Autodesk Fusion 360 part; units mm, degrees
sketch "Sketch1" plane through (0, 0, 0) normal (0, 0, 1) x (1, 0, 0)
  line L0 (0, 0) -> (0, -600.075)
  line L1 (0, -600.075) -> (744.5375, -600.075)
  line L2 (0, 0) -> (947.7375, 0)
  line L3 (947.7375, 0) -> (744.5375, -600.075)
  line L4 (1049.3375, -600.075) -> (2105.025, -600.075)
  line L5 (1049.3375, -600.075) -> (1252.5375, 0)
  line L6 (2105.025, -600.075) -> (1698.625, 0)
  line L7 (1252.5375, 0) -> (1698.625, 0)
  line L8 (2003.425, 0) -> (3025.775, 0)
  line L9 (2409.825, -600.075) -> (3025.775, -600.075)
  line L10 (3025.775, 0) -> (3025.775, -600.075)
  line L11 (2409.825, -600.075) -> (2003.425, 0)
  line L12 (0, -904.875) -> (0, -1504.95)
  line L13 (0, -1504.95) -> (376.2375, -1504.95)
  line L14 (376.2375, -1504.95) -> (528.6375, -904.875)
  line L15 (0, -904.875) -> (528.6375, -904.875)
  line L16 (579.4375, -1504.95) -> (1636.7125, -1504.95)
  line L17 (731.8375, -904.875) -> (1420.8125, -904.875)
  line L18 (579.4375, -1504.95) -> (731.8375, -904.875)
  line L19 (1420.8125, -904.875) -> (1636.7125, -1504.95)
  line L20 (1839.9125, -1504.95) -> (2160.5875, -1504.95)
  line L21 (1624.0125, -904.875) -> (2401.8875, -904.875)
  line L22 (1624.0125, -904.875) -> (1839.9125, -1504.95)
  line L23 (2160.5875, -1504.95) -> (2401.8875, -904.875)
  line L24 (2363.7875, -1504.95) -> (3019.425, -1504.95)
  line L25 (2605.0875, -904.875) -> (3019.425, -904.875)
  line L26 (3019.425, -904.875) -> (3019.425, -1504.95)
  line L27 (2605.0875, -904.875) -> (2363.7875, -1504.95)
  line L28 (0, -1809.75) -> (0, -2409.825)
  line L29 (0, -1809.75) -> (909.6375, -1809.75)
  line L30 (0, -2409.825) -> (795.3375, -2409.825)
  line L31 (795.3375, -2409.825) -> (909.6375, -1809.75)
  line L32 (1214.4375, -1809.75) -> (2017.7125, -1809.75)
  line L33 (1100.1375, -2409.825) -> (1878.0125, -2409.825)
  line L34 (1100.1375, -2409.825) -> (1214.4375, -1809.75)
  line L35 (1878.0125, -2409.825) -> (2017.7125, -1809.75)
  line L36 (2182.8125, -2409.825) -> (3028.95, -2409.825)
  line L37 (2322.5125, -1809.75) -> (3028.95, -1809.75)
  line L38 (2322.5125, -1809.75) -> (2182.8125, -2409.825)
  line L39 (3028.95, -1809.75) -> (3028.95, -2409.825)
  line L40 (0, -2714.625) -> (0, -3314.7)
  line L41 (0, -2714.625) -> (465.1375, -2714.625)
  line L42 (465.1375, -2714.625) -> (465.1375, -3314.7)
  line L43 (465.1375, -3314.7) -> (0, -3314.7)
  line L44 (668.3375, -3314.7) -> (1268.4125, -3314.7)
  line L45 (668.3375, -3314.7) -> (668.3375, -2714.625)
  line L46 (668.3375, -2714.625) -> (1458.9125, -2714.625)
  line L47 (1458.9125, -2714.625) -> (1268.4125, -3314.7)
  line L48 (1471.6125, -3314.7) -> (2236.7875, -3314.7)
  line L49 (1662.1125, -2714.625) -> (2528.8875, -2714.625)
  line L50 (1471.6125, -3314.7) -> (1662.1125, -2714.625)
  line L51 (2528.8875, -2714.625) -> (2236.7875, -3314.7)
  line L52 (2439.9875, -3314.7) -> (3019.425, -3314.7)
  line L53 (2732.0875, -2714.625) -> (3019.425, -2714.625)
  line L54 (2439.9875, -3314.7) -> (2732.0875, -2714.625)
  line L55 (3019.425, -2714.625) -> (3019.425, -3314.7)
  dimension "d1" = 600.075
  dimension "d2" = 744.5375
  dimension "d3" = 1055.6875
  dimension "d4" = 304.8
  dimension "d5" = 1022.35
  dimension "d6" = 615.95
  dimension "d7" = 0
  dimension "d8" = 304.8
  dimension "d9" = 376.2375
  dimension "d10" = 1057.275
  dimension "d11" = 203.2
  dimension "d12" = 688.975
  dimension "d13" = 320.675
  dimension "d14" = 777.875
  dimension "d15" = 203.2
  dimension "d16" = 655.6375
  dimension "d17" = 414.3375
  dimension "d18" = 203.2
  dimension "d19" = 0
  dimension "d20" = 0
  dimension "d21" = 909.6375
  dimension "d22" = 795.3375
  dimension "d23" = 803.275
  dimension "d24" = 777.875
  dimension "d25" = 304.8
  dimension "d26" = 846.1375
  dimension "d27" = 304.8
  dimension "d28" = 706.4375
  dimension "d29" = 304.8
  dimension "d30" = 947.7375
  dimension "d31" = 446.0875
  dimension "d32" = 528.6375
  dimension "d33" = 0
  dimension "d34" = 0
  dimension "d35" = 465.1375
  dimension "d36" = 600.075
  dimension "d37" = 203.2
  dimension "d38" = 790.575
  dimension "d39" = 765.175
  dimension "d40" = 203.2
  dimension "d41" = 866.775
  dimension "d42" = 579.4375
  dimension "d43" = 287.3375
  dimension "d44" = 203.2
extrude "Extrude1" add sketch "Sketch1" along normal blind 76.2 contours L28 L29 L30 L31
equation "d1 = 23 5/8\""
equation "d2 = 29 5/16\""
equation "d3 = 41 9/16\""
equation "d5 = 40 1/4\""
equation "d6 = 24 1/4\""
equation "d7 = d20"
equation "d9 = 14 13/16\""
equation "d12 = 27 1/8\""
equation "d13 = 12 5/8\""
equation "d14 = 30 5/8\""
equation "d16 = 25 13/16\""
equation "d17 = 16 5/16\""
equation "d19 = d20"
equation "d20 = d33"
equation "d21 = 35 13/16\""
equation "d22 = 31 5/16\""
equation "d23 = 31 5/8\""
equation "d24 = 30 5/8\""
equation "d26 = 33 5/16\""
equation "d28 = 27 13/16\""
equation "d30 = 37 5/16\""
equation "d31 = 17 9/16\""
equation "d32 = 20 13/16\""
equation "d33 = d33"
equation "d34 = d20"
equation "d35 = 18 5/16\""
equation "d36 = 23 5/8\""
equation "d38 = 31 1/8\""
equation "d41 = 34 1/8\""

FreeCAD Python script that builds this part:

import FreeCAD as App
import Part
import Sketcher
from FreeCAD import Vector
Q = App.Units.Quantity

doc = App.newDocument("Part")
body = doc.addObject("PartDesign::Body", "Body")

# Sketch on XY plane
sketch1 = body.newObject("Sketcher::SketchObject", "Sketch")
sketch1.AttachmentSupport = (doc.getObject("XY_Plane"), [""])
sketch1.MapMode = "FlatFace"
sketch1.addGeometry(Part.LineSegment(Vector(910, -1810, 0), Vector(0, -1810, 0)), False)
sketch1.addGeometry(Part.LineSegment(Vector(0, -1810, 0), Vector(0, -2410, 0)), False)
sketch1.addGeometry(Part.LineSegment(Vector(0, -2410, 0), Vector(795, -2410, 0)), False)
sketch1.addGeometry(Part.LineSegment(Vector(795, -2410, 0), Vector(910, -1810, 0)), False)
sketch1.addConstraint(Sketcher.Constraint("Coincident", 0, 2, 1, 1))
sketch1.addConstraint(Sketcher.Constraint("Coincident", 1, 2, 2, 1))
sketch1.addConstraint(Sketcher.Constraint("Coincident", 2, 2, 3, 1))
sketch1.addConstraint(Sketcher.Constraint("Coincident", 3, 2, 0, 1))
sketch1.addConstraint(Sketcher.Constraint("Horizontal", 0))
sketch1.addConstraint(Sketcher.Constraint("Vertical", 1))
sketch1.addConstraint(Sketcher.Constraint("Horizontal", 2))
sketch1.addConstraint(Sketcher.Constraint("PointOnObject", 0, 2, -2))
sketch1.addConstraint(Sketcher.Constraint("DistanceX", 0, 2, 0, 1, Q("35.8125 in")))
sketch1.addConstraint(Sketcher.Constraint("DistanceX", 2, 1, 2, 2, Q("31.3125 in")))
sketch1.addConstraint(Sketcher.Constraint("DistanceY", 1, 2, 1, 1, Q("23.625 in")))
sketch1.addConstraint(Sketcher.Constraint("DistanceY", 0, 2, -1, 1, Q("71.25 in")))
pad1 = body.newObject("PartDesign::Pad", "Pad")
pad1.Profile = sketch1
pad1.Length = Q("3 in")

doc.recompute()
